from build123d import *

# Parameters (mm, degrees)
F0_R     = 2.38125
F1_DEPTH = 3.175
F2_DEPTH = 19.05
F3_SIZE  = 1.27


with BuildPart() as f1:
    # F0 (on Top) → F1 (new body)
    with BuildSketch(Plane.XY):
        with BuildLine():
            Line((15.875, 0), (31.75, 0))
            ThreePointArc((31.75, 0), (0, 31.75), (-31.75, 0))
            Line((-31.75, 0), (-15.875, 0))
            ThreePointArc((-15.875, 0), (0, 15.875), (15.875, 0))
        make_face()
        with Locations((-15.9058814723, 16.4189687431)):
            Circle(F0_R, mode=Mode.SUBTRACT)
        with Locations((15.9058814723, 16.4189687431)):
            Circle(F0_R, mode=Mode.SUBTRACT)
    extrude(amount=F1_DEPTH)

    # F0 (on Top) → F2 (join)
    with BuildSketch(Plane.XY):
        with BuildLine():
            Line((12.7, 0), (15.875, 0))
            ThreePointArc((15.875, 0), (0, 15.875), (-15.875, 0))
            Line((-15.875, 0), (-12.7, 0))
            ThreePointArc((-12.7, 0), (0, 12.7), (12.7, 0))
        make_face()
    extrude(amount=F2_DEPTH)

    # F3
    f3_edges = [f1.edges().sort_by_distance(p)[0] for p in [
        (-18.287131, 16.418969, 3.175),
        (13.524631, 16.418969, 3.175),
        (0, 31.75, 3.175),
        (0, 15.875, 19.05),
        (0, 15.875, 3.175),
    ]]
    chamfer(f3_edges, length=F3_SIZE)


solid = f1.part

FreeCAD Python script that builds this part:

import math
import FreeCAD as App
import Part
import Sketcher
from FreeCAD import Vector
Q = App.Units.Quantity


def edges_at(feature, points):
    """Names of the edges that pass closest to the given points."""
    edges = feature.Shape.Edges
    near = lambda p: min(range(len(edges)), key=lambda i: edges[i].distToShape(Part.Vertex(*p))[0])
    return sorted({f"Edge{near(p) + 1}" for p in points})

doc = App.newDocument("Part")
params = doc.addObject("Spreadsheet::Sheet", "Params")
for row, (alias, value) in enumerate([
    ("sketch1_radius", "1.25 in"),
    ("sketch1_diameter", "0.1875 in"),
    ("sketch1_radius2", "0.625 in"),
    ("pad1_length", "0.125 in"),
    ("sketch2_radius", "0.5 in"),
    ("sketch2_radius2", "0.625 in"),
    ("pad2_length", "0.75 in"),
    ("chamfer_size", "0.05 in"),
], start=1):
    params.set(f"A{row}", alias)
    params.set(f"B{row}", "=" + value)
    params.setAlias(f"B{row}", alias)

body = doc.addObject("PartDesign::Body", "Body")

sketch1 = body.newObject("Sketcher::SketchObject", "Sketch")
sketch1.AttachmentSupport = (doc.getObject("XY_Plane"), [""])
sketch1.MapMode = "FlatFace"
sketch1.addGeometry([
    Part.LineSegment(Vector(15.875, 0, 0), Vector(31.75, 0, 0)),
    Part.ArcOfCircle(Part.Circle(Vector(0, 0, 0), Vector(0, 0, 1), 31.75), math.radians(0), math.radians(180)),
    Part.LineSegment(Vector(-31.75, 0, 0), Vector(-15.875, 0, 0)),
    Part.ArcOfCircle(Part.Circle(Vector(0, 0, 0), Vector(0, 0, 1), 15.875), math.radians(0), math.radians(180)),
    Part.Circle(Vector(-15.905881, 16.418969, 0), Vector(0, 0, 1), 2.38125),
    Part.Circle(Vector(15.905881, 16.418969, 0), Vector(0, 0, 1), 2.38125),
], False)
sketch1.addConstraint([
    Sketcher.Constraint("Coincident", 0, 2, 1, 1),
    Sketcher.Constraint("Coincident", 1, 2, 2, 1),
    Sketcher.Constraint("Coincident", 2, 2, 3, 2),
    Sketcher.Constraint("Coincident", 3, 1, 0, 1),
    Sketcher.Constraint("Horizontal", 0),
    Sketcher.Constraint("Horizontal", 2),
    Sketcher.Constraint("Coincident", 1, 3, -1, 1),
    Sketcher.Constraint("Coincident", 3, 3, -1, 1),
    Sketcher.Constraint("Equal", 4, 5),
    Sketcher.Constraint("Symmetric", 4, 3, 5, 3, -2),
    Sketcher.Constraint("PointOnObject", 0, 2, -1),
    Sketcher.Constraint("PointOnObject", 1, 2, -1),
    Sketcher.Constraint("Radius", 1, Q("1.25 in")),
    Sketcher.Constraint("Diameter", 4, Q("0.1875 in")),
    Sketcher.Constraint("Radius", 3, Q("0.625 in")),
    Sketcher.Constraint("DistanceX", 4, 3, -1, 1, Q("15.905881 mm")),
    Sketcher.Constraint("DistanceY", -1, 1, 4, 3, Q("16.418969 mm")),
])
sketch1.setExpression("Constraints[12]", "Params.sketch1_radius")
sketch1.setExpression("Constraints[13]", "Params.sketch1_diameter")
sketch1.setExpression("Constraints[14]", "Params.sketch1_radius2")
pad1 = body.newObject("PartDesign::Pad", "Pad")
pad1.Profile = sketch1
pad1.setExpression("Length", "Params.pad1_length")

sketch2 = body.newObject("Sketcher::SketchObject", "Sketch001")
sketch2.AttachmentSupport = (doc.getObject("XY_Plane"), [""])
sketch2.MapMode = "FlatFace"
sketch2.addGeometry([
    Part.LineSegment(Vector(12.7, 0, 0), Vector(15.875, 0, 0)),
    Part.ArcOfCircle(Part.Circle(Vector(0, 0, 0), Vector(0, 0, 1), 15.875), math.radians(0), math.radians(180)),
    Part.LineSegment(Vector(-15.875, 0, 0), Vector(-12.7, 0, 0)),
    Part.ArcOfCircle(Part.Circle(Vector(0, 0, 0), Vector(0, 0, 1), 12.7), math.radians(0), math.radians(180)),
], False)
sketch2.addConstraint([
    Sketcher.Constraint("Coincident", 0, 2, 1, 1),
    Sketcher.Constraint("Coincident", 1, 2, 2, 1),
    Sketcher.Constraint("Coincident", 2, 2, 3, 2),
    Sketcher.Constraint("Coincident", 3, 1, 0, 1),
    Sketcher.Constraint("Horizontal", 0),
    Sketcher.Constraint("Horizontal", 2),
    Sketcher.Constraint("Coincident", 1, 3, -1, 1),
    Sketcher.Constraint("Coincident", 3, 3, -1, 1),
    Sketcher.Constraint("PointOnObject", 0, 2, -1),
    Sketcher.Constraint("PointOnObject", 1, 2, -1),
    Sketcher.Constraint("Radius", 3, Q("0.5 in")),
    Sketcher.Constraint("Radius", 1, Q("0.625 in")),
])
sketch2.setExpression("Constraints[10]", "Params.sketch2_radius")
sketch2.setExpression("Constraints[11]", "Params.sketch2_radius2")
pad2 = body.newObject("PartDesign::Pad", "Pad001")
pad2.Profile = sketch2
pad2.setExpression("Length", "Params.pad2_length")
doc.recompute()

chamfer = body.newObject("PartDesign::Chamfer", "Chamfer")
chamfer.Base = (pad2, edges_at(pad2, [
    (-18.287, 16.419, 3.175),
    (13.525, 16.419, 3.175),
    (0, 31.75, 3.175),
    (0, 15.875, 19.05),
    (0, 15.875, 3.175),
]))
chamfer.setExpression("Size", "Params.chamfer_size")

doc.recompute()
